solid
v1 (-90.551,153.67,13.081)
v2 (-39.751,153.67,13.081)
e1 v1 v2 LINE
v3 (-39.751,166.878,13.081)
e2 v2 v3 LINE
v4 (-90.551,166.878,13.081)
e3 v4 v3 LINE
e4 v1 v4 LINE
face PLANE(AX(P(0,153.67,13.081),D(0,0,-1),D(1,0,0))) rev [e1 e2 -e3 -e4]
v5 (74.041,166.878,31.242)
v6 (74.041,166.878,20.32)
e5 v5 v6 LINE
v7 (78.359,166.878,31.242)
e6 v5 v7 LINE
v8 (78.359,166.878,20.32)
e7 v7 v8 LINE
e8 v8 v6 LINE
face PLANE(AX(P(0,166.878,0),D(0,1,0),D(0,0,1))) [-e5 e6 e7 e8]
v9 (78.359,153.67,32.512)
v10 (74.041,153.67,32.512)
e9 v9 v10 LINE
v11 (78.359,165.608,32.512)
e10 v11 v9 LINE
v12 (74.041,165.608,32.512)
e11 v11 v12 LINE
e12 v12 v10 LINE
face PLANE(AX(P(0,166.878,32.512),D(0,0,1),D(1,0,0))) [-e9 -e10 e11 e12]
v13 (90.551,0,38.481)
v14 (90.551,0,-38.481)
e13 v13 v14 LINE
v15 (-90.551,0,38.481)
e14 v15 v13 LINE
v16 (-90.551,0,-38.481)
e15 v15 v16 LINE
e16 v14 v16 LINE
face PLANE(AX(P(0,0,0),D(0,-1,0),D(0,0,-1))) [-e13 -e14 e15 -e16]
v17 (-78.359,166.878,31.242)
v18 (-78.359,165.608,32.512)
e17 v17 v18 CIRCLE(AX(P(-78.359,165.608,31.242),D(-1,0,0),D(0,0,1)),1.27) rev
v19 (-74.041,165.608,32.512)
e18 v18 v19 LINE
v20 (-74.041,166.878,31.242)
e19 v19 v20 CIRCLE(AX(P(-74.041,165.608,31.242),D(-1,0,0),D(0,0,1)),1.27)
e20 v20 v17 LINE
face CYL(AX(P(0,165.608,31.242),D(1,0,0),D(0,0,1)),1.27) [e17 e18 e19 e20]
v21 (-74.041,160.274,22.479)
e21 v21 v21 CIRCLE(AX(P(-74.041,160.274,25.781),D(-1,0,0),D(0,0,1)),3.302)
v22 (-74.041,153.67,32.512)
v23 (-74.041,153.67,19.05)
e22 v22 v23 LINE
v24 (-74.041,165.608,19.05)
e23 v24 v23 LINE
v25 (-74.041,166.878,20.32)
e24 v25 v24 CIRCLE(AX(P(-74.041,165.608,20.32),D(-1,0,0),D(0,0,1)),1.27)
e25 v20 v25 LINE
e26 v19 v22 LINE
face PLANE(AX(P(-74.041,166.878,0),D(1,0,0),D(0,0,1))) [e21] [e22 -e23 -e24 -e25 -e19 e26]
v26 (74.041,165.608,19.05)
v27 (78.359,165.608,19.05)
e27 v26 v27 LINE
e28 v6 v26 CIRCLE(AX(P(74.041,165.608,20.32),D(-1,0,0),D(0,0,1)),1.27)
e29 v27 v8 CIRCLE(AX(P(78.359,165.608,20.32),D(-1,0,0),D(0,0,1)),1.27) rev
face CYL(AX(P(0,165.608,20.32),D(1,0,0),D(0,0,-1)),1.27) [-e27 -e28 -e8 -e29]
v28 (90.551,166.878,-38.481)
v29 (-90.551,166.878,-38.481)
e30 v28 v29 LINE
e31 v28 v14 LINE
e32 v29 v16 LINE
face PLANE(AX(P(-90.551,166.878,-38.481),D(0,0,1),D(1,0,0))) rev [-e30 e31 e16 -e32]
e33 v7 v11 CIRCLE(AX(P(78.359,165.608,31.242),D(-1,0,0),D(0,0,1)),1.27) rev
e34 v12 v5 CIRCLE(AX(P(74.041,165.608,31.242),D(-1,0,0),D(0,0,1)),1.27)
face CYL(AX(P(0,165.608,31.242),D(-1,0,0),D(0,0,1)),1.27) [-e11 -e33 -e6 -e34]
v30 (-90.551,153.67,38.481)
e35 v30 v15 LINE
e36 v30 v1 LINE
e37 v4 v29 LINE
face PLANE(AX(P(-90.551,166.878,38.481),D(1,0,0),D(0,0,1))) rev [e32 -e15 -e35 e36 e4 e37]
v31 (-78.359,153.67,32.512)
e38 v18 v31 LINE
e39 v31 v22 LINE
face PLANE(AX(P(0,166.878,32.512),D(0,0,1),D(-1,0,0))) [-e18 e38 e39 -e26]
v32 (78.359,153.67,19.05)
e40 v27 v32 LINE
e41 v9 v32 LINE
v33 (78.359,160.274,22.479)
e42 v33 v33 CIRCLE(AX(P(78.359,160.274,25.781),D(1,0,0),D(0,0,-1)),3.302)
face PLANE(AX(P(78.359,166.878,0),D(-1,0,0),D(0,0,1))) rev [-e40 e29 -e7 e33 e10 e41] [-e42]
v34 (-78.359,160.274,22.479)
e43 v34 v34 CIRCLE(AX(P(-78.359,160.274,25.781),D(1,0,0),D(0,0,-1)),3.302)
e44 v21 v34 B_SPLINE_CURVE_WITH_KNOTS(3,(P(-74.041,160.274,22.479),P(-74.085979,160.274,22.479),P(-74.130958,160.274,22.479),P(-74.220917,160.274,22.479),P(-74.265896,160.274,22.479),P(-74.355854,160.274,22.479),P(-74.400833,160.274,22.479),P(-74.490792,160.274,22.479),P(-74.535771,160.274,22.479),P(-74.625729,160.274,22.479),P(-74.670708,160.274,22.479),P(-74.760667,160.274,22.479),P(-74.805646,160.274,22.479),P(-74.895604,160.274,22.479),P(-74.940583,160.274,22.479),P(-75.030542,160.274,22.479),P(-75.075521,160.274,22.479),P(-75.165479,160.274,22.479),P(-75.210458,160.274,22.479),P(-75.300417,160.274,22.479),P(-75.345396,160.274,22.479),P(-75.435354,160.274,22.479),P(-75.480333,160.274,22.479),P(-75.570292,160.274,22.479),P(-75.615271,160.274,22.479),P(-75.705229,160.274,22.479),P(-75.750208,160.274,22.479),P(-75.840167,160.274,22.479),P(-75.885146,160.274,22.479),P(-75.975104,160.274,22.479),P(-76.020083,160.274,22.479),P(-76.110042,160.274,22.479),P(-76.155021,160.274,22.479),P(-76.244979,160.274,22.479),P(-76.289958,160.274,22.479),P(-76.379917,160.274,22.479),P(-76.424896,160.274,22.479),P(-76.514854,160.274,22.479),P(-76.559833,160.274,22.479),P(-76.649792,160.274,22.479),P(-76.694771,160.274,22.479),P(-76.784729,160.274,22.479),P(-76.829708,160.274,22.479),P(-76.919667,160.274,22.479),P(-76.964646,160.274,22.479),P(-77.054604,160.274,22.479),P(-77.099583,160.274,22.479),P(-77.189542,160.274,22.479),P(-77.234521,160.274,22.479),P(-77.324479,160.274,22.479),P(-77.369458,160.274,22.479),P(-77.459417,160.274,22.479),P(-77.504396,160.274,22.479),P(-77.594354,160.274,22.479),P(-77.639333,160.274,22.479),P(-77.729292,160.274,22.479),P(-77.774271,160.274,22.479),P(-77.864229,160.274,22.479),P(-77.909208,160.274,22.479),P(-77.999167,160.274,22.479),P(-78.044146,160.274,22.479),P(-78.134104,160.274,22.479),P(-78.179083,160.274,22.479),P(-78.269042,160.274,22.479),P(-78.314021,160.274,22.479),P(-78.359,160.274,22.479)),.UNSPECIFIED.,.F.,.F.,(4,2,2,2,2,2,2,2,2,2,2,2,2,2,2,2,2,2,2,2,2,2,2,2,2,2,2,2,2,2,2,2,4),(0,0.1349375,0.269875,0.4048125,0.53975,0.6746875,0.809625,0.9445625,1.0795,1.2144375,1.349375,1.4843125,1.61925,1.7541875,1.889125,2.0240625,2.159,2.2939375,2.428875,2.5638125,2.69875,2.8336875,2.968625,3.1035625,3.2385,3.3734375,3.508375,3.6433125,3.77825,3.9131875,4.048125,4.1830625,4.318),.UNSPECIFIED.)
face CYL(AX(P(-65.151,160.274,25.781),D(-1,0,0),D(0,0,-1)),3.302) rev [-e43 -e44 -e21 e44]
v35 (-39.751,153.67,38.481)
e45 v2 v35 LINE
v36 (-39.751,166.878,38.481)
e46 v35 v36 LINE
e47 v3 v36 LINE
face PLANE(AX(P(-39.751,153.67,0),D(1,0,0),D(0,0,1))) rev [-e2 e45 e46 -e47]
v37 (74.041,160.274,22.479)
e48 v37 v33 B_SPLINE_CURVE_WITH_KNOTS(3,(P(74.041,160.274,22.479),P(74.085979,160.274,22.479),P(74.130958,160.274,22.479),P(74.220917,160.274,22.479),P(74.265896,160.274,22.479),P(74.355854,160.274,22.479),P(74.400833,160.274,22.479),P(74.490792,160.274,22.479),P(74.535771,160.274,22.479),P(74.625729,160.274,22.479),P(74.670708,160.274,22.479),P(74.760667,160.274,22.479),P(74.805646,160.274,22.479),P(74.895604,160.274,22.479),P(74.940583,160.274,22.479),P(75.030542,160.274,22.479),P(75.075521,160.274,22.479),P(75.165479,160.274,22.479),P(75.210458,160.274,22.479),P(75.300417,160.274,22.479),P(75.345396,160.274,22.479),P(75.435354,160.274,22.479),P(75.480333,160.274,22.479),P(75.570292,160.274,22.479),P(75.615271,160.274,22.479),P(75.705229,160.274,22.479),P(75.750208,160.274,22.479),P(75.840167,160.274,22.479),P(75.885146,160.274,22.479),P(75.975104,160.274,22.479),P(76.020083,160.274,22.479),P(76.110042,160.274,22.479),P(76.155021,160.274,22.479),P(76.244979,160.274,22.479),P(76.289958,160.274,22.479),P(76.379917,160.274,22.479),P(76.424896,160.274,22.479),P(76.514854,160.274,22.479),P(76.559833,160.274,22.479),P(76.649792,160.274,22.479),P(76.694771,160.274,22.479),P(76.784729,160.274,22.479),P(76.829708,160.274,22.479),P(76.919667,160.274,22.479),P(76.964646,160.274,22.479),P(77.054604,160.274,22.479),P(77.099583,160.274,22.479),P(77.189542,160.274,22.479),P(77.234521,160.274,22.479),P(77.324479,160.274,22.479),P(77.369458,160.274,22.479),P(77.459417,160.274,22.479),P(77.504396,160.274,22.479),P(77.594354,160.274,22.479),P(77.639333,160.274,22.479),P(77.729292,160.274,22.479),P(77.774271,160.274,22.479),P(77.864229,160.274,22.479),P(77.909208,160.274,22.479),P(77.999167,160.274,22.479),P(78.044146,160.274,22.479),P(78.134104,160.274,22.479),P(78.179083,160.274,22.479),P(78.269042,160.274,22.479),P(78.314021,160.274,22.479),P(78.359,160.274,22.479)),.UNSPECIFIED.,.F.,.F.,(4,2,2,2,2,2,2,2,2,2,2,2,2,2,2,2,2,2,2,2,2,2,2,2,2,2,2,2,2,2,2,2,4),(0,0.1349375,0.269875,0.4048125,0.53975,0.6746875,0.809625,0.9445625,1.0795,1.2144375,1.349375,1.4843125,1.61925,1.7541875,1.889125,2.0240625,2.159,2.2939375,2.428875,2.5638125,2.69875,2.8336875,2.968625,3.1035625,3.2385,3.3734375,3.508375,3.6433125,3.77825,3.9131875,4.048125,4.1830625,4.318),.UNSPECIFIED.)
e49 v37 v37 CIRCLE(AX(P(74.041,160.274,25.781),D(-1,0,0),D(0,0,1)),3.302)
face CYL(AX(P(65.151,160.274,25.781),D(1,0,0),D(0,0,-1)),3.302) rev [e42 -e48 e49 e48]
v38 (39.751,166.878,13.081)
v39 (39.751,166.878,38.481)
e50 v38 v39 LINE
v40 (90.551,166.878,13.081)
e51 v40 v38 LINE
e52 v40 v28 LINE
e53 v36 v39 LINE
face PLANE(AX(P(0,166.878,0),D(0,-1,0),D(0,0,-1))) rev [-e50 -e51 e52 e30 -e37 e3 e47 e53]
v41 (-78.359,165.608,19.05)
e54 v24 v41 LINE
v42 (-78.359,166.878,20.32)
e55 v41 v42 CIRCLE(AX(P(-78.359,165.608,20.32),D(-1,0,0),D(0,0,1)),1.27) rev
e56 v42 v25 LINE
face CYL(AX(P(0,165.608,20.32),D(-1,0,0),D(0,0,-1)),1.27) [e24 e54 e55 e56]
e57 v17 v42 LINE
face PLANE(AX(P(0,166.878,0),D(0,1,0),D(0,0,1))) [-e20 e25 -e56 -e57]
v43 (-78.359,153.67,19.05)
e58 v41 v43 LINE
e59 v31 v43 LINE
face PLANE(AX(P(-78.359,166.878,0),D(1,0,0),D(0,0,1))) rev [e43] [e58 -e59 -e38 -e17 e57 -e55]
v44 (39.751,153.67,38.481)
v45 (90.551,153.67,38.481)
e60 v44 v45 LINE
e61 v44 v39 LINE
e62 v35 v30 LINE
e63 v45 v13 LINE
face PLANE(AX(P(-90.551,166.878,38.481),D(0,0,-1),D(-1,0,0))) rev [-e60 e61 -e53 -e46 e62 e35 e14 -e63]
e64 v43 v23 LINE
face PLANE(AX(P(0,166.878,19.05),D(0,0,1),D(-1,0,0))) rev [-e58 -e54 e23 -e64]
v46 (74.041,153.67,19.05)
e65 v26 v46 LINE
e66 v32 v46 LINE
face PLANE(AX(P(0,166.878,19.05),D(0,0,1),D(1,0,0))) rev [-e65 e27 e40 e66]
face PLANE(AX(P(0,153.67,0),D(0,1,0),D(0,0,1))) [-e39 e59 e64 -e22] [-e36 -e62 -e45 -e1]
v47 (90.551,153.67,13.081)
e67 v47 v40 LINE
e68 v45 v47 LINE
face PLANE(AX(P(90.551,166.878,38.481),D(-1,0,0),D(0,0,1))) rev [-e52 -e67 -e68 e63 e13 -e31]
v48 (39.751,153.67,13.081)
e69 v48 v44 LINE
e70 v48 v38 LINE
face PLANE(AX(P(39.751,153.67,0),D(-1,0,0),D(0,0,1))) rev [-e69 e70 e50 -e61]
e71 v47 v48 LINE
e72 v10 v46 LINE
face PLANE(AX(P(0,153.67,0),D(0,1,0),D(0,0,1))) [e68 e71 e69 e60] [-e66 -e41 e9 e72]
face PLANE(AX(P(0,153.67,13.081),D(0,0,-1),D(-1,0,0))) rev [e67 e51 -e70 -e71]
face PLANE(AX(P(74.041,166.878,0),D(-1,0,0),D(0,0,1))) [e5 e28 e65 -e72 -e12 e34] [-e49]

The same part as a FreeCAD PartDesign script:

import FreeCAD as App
import Part
import Sketcher
from FreeCAD import Vector
Q = App.Units.Quantity


def edges_at(feature, points):
    """Names of the edges that pass closest to the given points."""
    edges = feature.Shape.Edges
    near = lambda p: min(range(len(edges)), key=lambda i: edges[i].distToShape(Part.Vertex(*p))[0])
    return sorted({f"Edge{near(p) + 1}" for p in points})

doc = App.newDocument("Part")
params = doc.addObject("Spreadsheet::Sheet", "Params")
for row, (alias, value) in enumerate([
    ("sketch1_width", "7.13 in"),
    ("sketch1_height", "3.03 in"),
    ("pad1_length", "6.57 in"),
    ("sketch2_height", "3.03 in"),
    ("sketch2_width", "3.565 in"),
    ("sketch3_width", "2 in"),
    ("sketch3_height", "1 in"),
    ("pocket2_length", "0.52 in"),
    ("sketch4_width", "0.17 in"),
    ("sketch4_height", "0.53 in"),
    ("pad2_length", "0.52 in"),
    ("sketch5_diameter", "0.26 in"),
    ("pocket3_length", "0.52 in"),
    ("fillet_radius", "0.05 in"),
], start=1):
    params.set(f"A{row}", alias)
    params.set(f"B{row}", "=" + value)
    params.setAlias(f"B{row}", alias)

body = doc.addObject("PartDesign::Body", "Body")

# Sketch on XZ plane
sketch1 = body.newObject("Sketcher::SketchObject", "Sketch")
sketch1.AttachmentSupport = (doc.getObject("XZ_Plane"), [""])
sketch1.MapMode = "FlatFace"
sketch1.addGeometry([
    Part.LineSegment(Vector(-90.551, -38.481, 0), Vector(-90.551, 38.481, 0)),
    Part.LineSegment(Vector(-90.551, 38.481, 0), Vector(90.551, 38.481, 0)),
    Part.LineSegment(Vector(90.551, 38.481, 0), Vector(90.551, -38.481, 0)),
    Part.LineSegment(Vector(90.551, -38.481, 0), Vector(-90.551, -38.481, 0)),
], False)
sketch1.addConstraint([
    Sketcher.Constraint("Coincident", 0, 2, 1, 1),
    Sketcher.Constraint("Coincident", 1, 2, 2, 1),
    Sketcher.Constraint("Coincident", 2, 2, 3, 1),
    Sketcher.Constraint("Coincident", 3, 2, 0, 1),
    Sketcher.Constraint("Vertical", 0),
    Sketcher.Constraint("Horizontal", 1),
    Sketcher.Constraint("Vertical", 2),
    Sketcher.Constraint("Horizontal", 3),
    Sketcher.Constraint("Symmetric", 0, 2, 2, 2, -1, 1),
    Sketcher.Constraint("DistanceX", 1, 1, 1, 2, Q("7.13 in")),
    Sketcher.Constraint("DistanceY", 0, 1, 0, 2, Q("3.03 in")),
])
sketch1.setExpression("Constraints[9]", "Params.sketch1_width")
sketch1.setExpression("Constraints[10]", "Params.sketch1_height")
pad1 = body.newObject("PartDesign::Pad", "Pad")
pad1.Profile = sketch1
pad1.setExpression("Length", "Params.pad1_length")
pad1.Reversed = True

# Sketch on XZ plane
sketch2 = body.newObject("Sketcher::SketchObject", "Sketch001")
sketch2.AttachmentSupport = (doc.getObject("XZ_Plane"), [""])
sketch2.MapMode = "FlatFace"
sketch2.AttachmentOffset = App.Placement(Vector(0, 0, -6.57 * 25.4), App.Rotation())
sketch2.addGeometry([
    Part.LineSegment(Vector(0, 38.481, 0), Vector(0, -38.481, 0)),
    Part.LineSegment(Vector(0, -38.481, 0), Vector(-90.551, -38.481, 0)),
    Part.LineSegment(Vector(-90.551, -38.481, 0), Vector(-90.551, 38.481, 0)),
    Part.LineSegment(Vector(-90.551, 38.481, 0), Vector(0, 38.481, 0)),
], False)
sketch2.addConstraint([
    Sketcher.Constraint("Coincident", 0, 2, 1, 1),
    Sketcher.Constraint("Coincident", 1, 2, 2, 1),
    Sketcher.Constraint("Coincident", 2, 2, 3, 1),
    Sketcher.Constraint("Coincident", 3, 2, 0, 1),
    Sketcher.Constraint("Vertical", 0),
    Sketcher.Constraint("Horizontal", 1),
    Sketcher.Constraint("Vertical", 2),
    Sketcher.Constraint("Horizontal", 3),
    Sketcher.Constraint("Symmetric", 0, 2, 3, 2, -1, 1),
    Sketcher.Constraint("DistanceY", 0, 2, 0, 1, Q("3.03 in")),
    Sketcher.Constraint("DistanceX", 1, 2, 1, 1, Q("3.565 in")),
])
sketch2.setExpression("Constraints[9]", "Params.sketch2_height")
sketch2.setExpression("Constraints[10]", "Params.sketch2_width")
pocket1 = body.newObject("PartDesign::Pocket", "Pocket")
pocket1.Profile = sketch2
pocket1.Type = "ThroughAll"
pocket1.Reversed = True

# Sketch on XZ plane
sketch3 = body.newObject("Sketcher::SketchObject", "Sketch002")
sketch3.AttachmentSupport = (doc.getObject("XZ_Plane"), [""])
sketch3.MapMode = "FlatFace"
sketch3.AttachmentOffset = App.Placement(Vector(0, 0, -6.57 * 25.4), App.Rotation())
sketch3.addGeometry([
    Part.LineSegment(Vector(39.751, 13.081, 0), Vector(39.751, 38.481, 0)),
    Part.LineSegment(Vector(39.751, 38.481, 0), Vector(90.551, 38.481, 0)),
    Part.LineSegment(Vector(90.551, 38.481, 0), Vector(90.551, 13.081, 0)),
    Part.LineSegment(Vector(90.551, 13.081, 0), Vector(39.751, 13.081, 0)),
], False)
sketch3.addConstraint([
    Sketcher.Constraint("Coincident", 0, 2, 1, 1),
    Sketcher.Constraint("Coincident", 1, 2, 2, 1),
    Sketcher.Constraint("Coincident", 2, 2, 3, 1),
    Sketcher.Constraint("Coincident", 3, 2, 0, 1),
    Sketcher.Constraint("Vertical", 0),
    Sketcher.Constraint("Horizontal", 1),
    Sketcher.Constraint("Vertical", 2),
    Sketcher.Constraint("Horizontal", 3),
    Sketcher.Constraint("DistanceX", 1, 1, 1, 2, Q("2 in")),
    Sketcher.Constraint("DistanceY", 0, 1, 0, 2, Q("1 in")),
    Sketcher.Constraint("DistanceX", -1, 1, 0, 2, Q("1.565 in")),
    Sketcher.Constraint("DistanceY", -1, 1, 0, 2, Q("1.515 in")),
])
sketch3.setExpression("Constraints[8]", "Params.sketch3_width")
sketch3.setExpression("Constraints[9]", "Params.sketch3_height")
pocket2 = body.newObject("PartDesign::Pocket", "Pocket001")
pocket2.Profile = sketch3
pocket2.setExpression("Length", "Params.pocket2_length")
pocket2.Reversed = True

# Sketch on XZ plane
sketch4 = body.newObject("Sketcher::SketchObject", "Sketch003")
sketch4.AttachmentSupport = (doc.getObject("XZ_Plane"), [""])
sketch4.MapMode = "FlatFace"
sketch4.AttachmentOffset = App.Placement(Vector(0, 0, -6.05 * 25.4), App.Rotation())
sketch4.addGeometry([
    Part.LineSegment(Vector(74.041, 19.05, 0), Vector(74.041, 32.512, 0)),
    Part.LineSegment(Vector(74.041, 32.512, 0), Vector(78.359, 32.512, 0)),
    Part.LineSegment(Vector(78.359, 32.512, 0), Vector(78.359, 19.05, 0)),
    Part.LineSegment(Vector(78.359, 19.05, 0), Vector(74.041, 19.05, 0)),
], False)
sketch4.addConstraint([
    Sketcher.Constraint("Coincident", 0, 2, 1, 1),
    Sketcher.Constraint("Coincident", 1, 2, 2, 1),
    Sketcher.Constraint("Coincident", 2, 2, 3, 1),
    Sketcher.Constraint("Coincident", 3, 2, 0, 1),
    Sketcher.Constraint("Vertical", 0),
    Sketcher.Constraint("Horizontal", 1),
    Sketcher.Constraint("Vertical", 2),
    Sketcher.Constraint("Horizontal", 3),
    Sketcher.Constraint("DistanceX", 1, 1, 1, 2, Q("0.17 in")),
    Sketcher.Constraint("DistanceY", 0, 1, 0, 2, Q("0.53 in")),
    Sketcher.Constraint("DistanceY", -1, 1, 0, 2, Q("1.28 in")),
    Sketcher.Constraint("DistanceX", -1, 1, 0, 2, Q("2.915 in")),
])
sketch4.setExpression("Constraints[8]", "Params.sketch4_width")
sketch4.setExpression("Constraints[9]", "Params.sketch4_height")
pad2 = body.newObject("PartDesign::Pad", "Pad001")
pad2.Profile = sketch4
pad2.setExpression("Length", "Params.pad2_length")
pad2.Reversed = True

# Sketch on YZ plane
sketch5 = body.newObject("Sketcher::SketchObject", "Sketch004")
sketch5.AttachmentSupport = (doc.getObject("YZ_Plane"), [""])
sketch5.MapMode = "FlatFace"
sketch5.AttachmentOffset = App.Placement(Vector(0, 0, 3.085 * 25.4), App.Rotation())
sketch5.addGeometry(Part.Circle(Vector(160.274, 25.781, 0), Vector(0, 0, 1), 3.302), False)
sketch5.addConstraint([
    Sketcher.Constraint("Diameter", 0, Q("0.26 in")),
    Sketcher.Constraint("DistanceX", -1, 1, 0, 3, Q("6.31 in")),
    Sketcher.Constraint("DistanceY", -1, 1, 0, 3, Q("1.015 in")),
])
sketch5.setExpression("Constraints[0]", "Params.sketch5_diameter")
pocket3 = body.newObject("PartDesign::Pocket", "Pocket002")
pocket3.Profile = sketch5
pocket3.setExpression("Length", "Params.pocket3_length")
doc.recompute()

fillet = body.newObject("PartDesign::Fillet", "Fillet")
fillet.Base = (pocket3, edges_at(pocket3, [(76.2, 166.878, 32.512), (76.2, 166.878, 19.05)]))
fillet.setExpression("Radius", "Params.fillet_radius")
body2 = doc.addObject("PartDesign::Body", "Body001")
doc.recompute()

body2.BaseFeature = body
doc.recompute()

mirroring = doc.addObject("Part::Mirroring", "Mirroring")
mirroring.Source = body
mirroring.Base = Vector(0, 0, 0)
mirroring.Normal = Vector(-1, 0, 0)
body3 = doc.addObject("PartDesign::Body", "Body002")
body3.BaseFeature = mirroring
boolean = body2.newObject("PartDesign::Boolean", "Boolean")
boolean.Type = "Fuse"
boolean.addObjects([body3])
doc.recompute()
mirroring.Visibility = False

doc.recompute()
